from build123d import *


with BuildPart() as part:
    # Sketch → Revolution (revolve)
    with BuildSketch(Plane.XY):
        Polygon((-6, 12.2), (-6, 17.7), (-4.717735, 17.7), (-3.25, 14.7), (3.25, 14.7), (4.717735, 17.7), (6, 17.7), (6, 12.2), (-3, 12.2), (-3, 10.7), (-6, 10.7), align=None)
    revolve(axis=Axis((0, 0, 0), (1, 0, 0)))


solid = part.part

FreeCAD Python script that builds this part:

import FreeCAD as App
import Part
import Sketcher

doc = App.newDocument("Part")
body = doc.addObject("PartDesign::Body", "Body")

# Sketch on XY plane
sketch1 = body.newObject("Sketcher::SketchObject", "Sketch")
sketch1.AttachmentSupport = (doc.getObject("XY_Plane"), [""])
sketch1.MapMode = "FlatFace"
sketch1.addGeometry([
    Part.LineSegment(App.Vector(-6, 17.7, 0), App.Vector(-6, 10.7, 0)),  # 0
    Part.LineSegment(App.Vector(-6, 10.7, 0), App.Vector(-3, 10.7, 0)),  # 1
    Part.LineSegment(App.Vector(-3, 10.7, 0), App.Vector(-3, 12.2, 0)),  # 2
    Part.LineSegment(App.Vector(-3, 12.2, 0), App.Vector(6, 12.2, 0)),  # 3
    Part.LineSegment(App.Vector(6, 12.2, 0), App.Vector(6, 17.7, 0)),  # 4
    Part.LineSegment(App.Vector(6, 17.7, 0), App.Vector(4.7, 17.7, 0)),  # 5
    Part.LineSegment(App.Vector(4.7, 17.7, 0), App.Vector(3.2, 14.7, 0)),  # 6
    Part.LineSegment(App.Vector(3.2, 14.7, 0), App.Vector(-3.2, 14.7, 0)),  # 7
    Part.LineSegment(App.Vector(-3.2, 14.7, 0), App.Vector(-4.7, 17.7, 0)),  # 8
    Part.LineSegment(App.Vector(-4.7, 17.7, 0), App.Vector(-6, 17.7, 0)),  # 9
], False)
sketch1.addConstraint([
    Sketcher.Constraint("Coincident", 0, 2, 1, 1),
    Sketcher.Constraint("Coincident", 1, 2, 2, 1),
    Sketcher.Constraint("Coincident", 2, 2, 3, 1),
    Sketcher.Constraint("Coincident", 3, 2, 4, 1),
    Sketcher.Constraint("Coincident", 4, 2, 5, 1),
    Sketcher.Constraint("Coincident", 5, 2, 6, 1),
    Sketcher.Constraint("Coincident", 6, 2, 7, 1),
    Sketcher.Constraint("Coincident", 7, 2, 8, 1),
    Sketcher.Constraint("Coincident", 8, 2, 9, 1),
    Sketcher.Constraint("Coincident", 9, 2, 0, 1),
    Sketcher.Constraint("Vertical", 0),
    Sketcher.Constraint("Horizontal", 1),
    Sketcher.Constraint("Vertical", 2),
    Sketcher.Constraint("Horizontal", 3),
    Sketcher.Constraint("Vertical", 4),
    Sketcher.Constraint("Horizontal", 5),
    Sketcher.Constraint("Horizontal", 7),
    Sketcher.Constraint("Horizontal", 9),
    Sketcher.Constraint("Symmetric", 5, 2, 8, 2, -2),
    Sketcher.Constraint("Equal", 5, 9),
    Sketcher.Constraint("Equal", 6, 8),
    Sketcher.Constraint("DistanceX", 1, 1, 1, 2, 3.0),
    Sketcher.Constraint("DistanceX", 3, 1, 3, 2, 9.0),
    Sketcher.Constraint("DistanceY", 0, 2, 0, 1, 7.0),
    Sketcher.Constraint("DistanceX", 7, 2, 7, 1, 6.5),
    Sketcher.Constraint("DistanceY", 2, 1, 2, 2, 1.5),
    Sketcher.Constraint("DistanceY", 6, 2, 5, 2, 3.0),
    Sketcher.Constraint("DistanceY", -1, 1, 0, 2, 10.7),
    Sketcher.Constraint("DistanceX", 5, 2, 5, 1, 1.282265),
])
revolution = body.newObject("PartDesign::Revolution", "Revolution")
revolution.Profile = sketch1
revolution.ReferenceAxis = (sketch1, ["H_Axis"])
revolution.Angle = 360

doc.recompute()
